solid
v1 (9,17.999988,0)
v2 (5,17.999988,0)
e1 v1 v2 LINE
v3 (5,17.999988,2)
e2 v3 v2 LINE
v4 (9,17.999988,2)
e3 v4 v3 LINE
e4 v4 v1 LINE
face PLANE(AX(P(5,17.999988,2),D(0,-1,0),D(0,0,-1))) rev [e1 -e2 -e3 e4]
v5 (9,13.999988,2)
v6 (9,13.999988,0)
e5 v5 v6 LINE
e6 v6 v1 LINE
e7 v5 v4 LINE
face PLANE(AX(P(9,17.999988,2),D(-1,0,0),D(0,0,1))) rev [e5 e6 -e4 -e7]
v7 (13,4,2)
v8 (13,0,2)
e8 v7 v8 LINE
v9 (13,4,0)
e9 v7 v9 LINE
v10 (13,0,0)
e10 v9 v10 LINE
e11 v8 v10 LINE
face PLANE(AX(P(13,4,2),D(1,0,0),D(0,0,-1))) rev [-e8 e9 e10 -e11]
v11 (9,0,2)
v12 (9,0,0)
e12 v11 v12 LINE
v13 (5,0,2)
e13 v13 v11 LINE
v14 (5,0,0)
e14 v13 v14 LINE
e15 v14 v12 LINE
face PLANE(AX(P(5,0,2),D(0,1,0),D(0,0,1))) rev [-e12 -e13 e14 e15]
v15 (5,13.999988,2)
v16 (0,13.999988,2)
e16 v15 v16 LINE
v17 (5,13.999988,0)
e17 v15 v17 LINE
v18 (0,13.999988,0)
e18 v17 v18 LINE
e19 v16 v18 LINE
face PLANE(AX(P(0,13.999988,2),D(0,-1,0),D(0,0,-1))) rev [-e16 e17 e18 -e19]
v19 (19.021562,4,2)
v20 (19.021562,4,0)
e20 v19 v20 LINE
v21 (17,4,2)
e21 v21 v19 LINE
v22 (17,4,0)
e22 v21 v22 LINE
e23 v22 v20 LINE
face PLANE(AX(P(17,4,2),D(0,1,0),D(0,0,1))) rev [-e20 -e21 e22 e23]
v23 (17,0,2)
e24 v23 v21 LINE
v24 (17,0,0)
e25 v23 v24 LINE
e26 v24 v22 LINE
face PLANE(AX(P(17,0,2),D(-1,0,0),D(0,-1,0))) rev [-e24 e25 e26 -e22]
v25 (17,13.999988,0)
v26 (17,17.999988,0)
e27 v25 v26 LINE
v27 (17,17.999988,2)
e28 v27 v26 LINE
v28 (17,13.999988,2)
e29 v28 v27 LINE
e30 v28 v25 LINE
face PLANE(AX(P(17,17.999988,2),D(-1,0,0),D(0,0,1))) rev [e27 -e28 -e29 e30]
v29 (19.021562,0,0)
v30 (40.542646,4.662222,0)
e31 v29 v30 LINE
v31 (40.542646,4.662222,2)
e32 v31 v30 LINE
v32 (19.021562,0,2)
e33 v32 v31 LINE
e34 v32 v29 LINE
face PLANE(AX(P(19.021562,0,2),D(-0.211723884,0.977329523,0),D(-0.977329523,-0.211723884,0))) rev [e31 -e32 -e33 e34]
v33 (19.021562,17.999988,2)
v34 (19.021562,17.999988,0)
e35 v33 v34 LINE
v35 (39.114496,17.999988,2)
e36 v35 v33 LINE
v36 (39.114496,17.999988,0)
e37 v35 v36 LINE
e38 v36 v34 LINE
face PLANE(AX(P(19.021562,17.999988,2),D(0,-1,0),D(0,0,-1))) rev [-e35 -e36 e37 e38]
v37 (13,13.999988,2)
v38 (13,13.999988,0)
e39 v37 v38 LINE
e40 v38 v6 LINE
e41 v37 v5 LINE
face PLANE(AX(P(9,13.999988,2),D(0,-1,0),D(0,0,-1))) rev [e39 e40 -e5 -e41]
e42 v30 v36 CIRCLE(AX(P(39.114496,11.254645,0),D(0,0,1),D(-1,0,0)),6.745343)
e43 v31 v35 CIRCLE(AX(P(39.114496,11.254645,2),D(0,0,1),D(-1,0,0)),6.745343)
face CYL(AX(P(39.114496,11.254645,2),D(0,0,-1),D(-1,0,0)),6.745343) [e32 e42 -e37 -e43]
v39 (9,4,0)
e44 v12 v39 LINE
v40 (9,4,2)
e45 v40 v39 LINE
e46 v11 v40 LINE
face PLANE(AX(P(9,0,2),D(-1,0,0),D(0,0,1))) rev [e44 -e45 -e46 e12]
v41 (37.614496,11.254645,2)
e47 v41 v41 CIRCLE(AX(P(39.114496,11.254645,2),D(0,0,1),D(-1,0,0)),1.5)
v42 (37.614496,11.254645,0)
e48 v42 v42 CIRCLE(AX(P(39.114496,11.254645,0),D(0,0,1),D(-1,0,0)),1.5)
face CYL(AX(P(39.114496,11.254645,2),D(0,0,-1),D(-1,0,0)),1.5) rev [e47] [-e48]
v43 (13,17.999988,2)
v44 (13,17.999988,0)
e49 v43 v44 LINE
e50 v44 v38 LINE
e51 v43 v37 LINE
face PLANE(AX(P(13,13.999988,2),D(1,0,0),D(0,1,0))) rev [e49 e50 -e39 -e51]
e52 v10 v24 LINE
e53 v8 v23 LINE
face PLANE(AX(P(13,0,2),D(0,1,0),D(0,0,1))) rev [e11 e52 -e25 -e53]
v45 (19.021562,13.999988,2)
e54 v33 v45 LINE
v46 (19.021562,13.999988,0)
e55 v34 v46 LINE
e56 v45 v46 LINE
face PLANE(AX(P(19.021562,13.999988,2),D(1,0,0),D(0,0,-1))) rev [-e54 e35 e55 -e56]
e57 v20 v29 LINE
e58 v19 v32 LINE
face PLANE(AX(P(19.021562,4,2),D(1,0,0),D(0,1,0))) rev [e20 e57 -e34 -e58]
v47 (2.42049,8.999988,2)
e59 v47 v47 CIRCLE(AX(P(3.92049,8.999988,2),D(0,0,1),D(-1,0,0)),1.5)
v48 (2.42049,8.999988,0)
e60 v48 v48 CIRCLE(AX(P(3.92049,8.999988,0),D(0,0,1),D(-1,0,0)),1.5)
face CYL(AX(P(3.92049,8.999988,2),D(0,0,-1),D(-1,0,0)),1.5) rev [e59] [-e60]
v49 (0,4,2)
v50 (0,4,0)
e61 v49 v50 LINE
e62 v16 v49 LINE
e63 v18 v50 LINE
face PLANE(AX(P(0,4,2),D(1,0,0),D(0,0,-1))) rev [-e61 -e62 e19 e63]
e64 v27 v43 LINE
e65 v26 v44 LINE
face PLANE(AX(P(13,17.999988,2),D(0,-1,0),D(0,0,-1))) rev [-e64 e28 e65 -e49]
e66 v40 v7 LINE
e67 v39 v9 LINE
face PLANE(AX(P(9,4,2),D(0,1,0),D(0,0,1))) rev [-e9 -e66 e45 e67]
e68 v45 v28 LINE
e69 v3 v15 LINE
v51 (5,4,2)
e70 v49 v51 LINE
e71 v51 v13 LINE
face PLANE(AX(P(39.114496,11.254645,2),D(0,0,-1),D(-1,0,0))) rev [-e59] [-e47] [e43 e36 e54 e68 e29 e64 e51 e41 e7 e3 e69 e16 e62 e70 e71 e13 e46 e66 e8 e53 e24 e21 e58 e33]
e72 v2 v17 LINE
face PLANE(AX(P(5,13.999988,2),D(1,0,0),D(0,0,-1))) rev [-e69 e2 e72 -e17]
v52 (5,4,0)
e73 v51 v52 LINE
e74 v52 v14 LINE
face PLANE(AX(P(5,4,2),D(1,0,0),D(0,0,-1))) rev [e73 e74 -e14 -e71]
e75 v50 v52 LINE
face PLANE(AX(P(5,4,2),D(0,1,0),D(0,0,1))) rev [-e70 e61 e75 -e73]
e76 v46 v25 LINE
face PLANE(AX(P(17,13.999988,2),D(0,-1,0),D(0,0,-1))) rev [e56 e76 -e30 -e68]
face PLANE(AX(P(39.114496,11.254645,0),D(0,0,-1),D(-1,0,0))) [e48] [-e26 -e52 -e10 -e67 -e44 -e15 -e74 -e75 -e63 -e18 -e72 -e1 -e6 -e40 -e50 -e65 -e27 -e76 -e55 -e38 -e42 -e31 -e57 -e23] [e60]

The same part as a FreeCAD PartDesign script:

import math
import FreeCAD as App
import Part
import Sketcher
from FreeCAD import Vector

doc = App.newDocument("Part")
body = doc.addObject("PartDesign::Body", "Body")

# Sketch on XY plane
sketch1 = body.newObject("Sketcher::SketchObject", "Sketch")
sketch1.AttachmentSupport = (doc.getObject("XY_Plane"), [""])
sketch1.MapMode = "FlatFace"
sketch1.addGeometry([
    Part.LineSegment(Vector(19.021562, 0, 0), Vector(40.542646, 4.662222, 0)),  # 0
    Part.ArcOfCircle(Part.Circle(Vector(39.114496, 11.254645, 0), Vector(0, 0, 1), 6.745343), math.radians(-77.776605), math.radians(90)),  # 1
    Part.LineSegment(Vector(39.114496, 17.999988, 0), Vector(19.021562, 17.999988, 0)),  # 2
    Part.LineSegment(Vector(19.021562, 17.999988, 0), Vector(19.021562, 13.999988, 0)),  # 3
    Part.LineSegment(Vector(19.021562, 13.999988, 0), Vector(17, 13.999988, 0)),  # 4
    Part.LineSegment(Vector(17, 13.999988, 0), Vector(17, 17.999988, 0)),  # 5
    Part.LineSegment(Vector(17, 17.999988, 0), Vector(13, 17.999988, 0)),  # 6
    Part.LineSegment(Vector(13, 17.999988, 0), Vector(13, 13.999988, 0)),  # 7
    Part.LineSegment(Vector(13, 13.999988, 0), Vector(9, 13.999988, 0)),  # 8
    Part.LineSegment(Vector(9, 13.999988, 0), Vector(9, 17.999988, 0)),  # 9
    Part.LineSegment(Vector(9, 17.999988, 0), Vector(5, 17.999988, 0)),  # 10
    Part.LineSegment(Vector(5, 17.999988, 0), Vector(5, 13.999988, 0)),  # 11
    Part.LineSegment(Vector(5, 13.999988, 0), Vector(0, 13.999988, 0)),  # 12
    Part.LineSegment(Vector(0, 13.999988, 0), Vector(0, 4, 0)),  # 13
    Part.LineSegment(Vector(0, 4, 0), Vector(5, 4, 0)),  # 14
    Part.LineSegment(Vector(5, 4, 0), Vector(5, 0, 0)),  # 15
    Part.LineSegment(Vector(5, 0, 0), Vector(9, 0, 0)),  # 16
    Part.LineSegment(Vector(9, 0, 0), Vector(9, 4, 0)),  # 17
    Part.LineSegment(Vector(9, 4, 0), Vector(13, 4, 0)),  # 18
    Part.LineSegment(Vector(13, 4, 0), Vector(13, 0, 0)),  # 19
    Part.LineSegment(Vector(13, 0, 0), Vector(17, 0, 0)),  # 20
    Part.LineSegment(Vector(17, 0, 0), Vector(17, 4, 0)),  # 21
    Part.LineSegment(Vector(17, 4, 0), Vector(19.021562, 4, 0)),  # 22
    Part.LineSegment(Vector(19.021562, 4, 0), Vector(19.021562, 0, 0)),  # 23
    Part.Circle(Vector(3.92049, 8.999988, 0), Vector(0, 0, 1), 1.5),  # 24
    Part.Circle(Vector(39.114496, 11.254645, 0), Vector(0, 0, 1), 1.5),  # 25
], False)
sketch1.addConstraint([
    Sketcher.Constraint("Tangent", 0, 2, 1, 1),
    Sketcher.Constraint("Tangent", 1, 2, 2, 1),
    Sketcher.Constraint("Coincident", 2, 2, 3, 1),
    Sketcher.Constraint("Coincident", 3, 2, 4, 1),
    Sketcher.Constraint("Coincident", 4, 2, 5, 1),
    Sketcher.Constraint("Coincident", 5, 2, 6, 1),
    Sketcher.Constraint("Coincident", 6, 2, 7, 1),
    Sketcher.Constraint("Coincident", 7, 2, 8, 1),
    Sketcher.Constraint("Coincident", 8, 2, 9, 1),
    Sketcher.Constraint("Coincident", 9, 2, 10, 1),
    Sketcher.Constraint("Coincident", 10, 2, 11, 1),
    Sketcher.Constraint("Coincident", 11, 2, 12, 1),
    Sketcher.Constraint("Coincident", 12, 2, 13, 1),
    Sketcher.Constraint("Coincident", 13, 2, 14, 1),
    Sketcher.Constraint("Coincident", 14, 2, 15, 1),
    Sketcher.Constraint("Coincident", 15, 2, 16, 1),
    Sketcher.Constraint("Coincident", 16, 2, 17, 1),
    Sketcher.Constraint("Coincident", 17, 2, 18, 1),
    Sketcher.Constraint("Coincident", 18, 2, 19, 1),
    Sketcher.Constraint("Coincident", 19, 2, 20, 1),
    Sketcher.Constraint("Coincident", 20, 2, 21, 1),
    Sketcher.Constraint("Coincident", 21, 2, 22, 1),
    Sketcher.Constraint("Coincident", 22, 2, 23, 1),
    Sketcher.Constraint("Coincident", 23, 2, 0, 1),
    Sketcher.Constraint("Horizontal", 2),
    Sketcher.Constraint("Vertical", 3),
    Sketcher.Constraint("Horizontal", 4),
    Sketcher.Constraint("Vertical", 5),
    Sketcher.Constraint("Horizontal", 6),
    Sketcher.Constraint("Vertical", 7),
    Sketcher.Constraint("Horizontal", 8),
    Sketcher.Constraint("Vertical", 9),
    Sketcher.Constraint("Horizontal", 10),
    Sketcher.Constraint("Vertical", 11),
    Sketcher.Constraint("Horizontal", 12),
    Sketcher.Constraint("Vertical", 13),
    Sketcher.Constraint("Horizontal", 14),
    Sketcher.Constraint("Vertical", 15),
    Sketcher.Constraint("Horizontal", 16),
    Sketcher.Constraint("Vertical", 17),
    Sketcher.Constraint("Horizontal", 18),
    Sketcher.Constraint("Vertical", 19),
    Sketcher.Constraint("Horizontal", 20),
    Sketcher.Constraint("Vertical", 21),
    Sketcher.Constraint("Horizontal", 22),
    Sketcher.Constraint("Vertical", 23),
    Sketcher.Constraint("Coincident", 25, 3, 1, 3),
    Sketcher.Constraint("Equal", 24, 25),
    Sketcher.Constraint("PointOnObject", 12, 2, -2),
    Sketcher.Constraint("PointOnObject", 15, 2, -1),
    Sketcher.Constraint("PointOnObject", 19, 2, -1),
    Sketcher.Constraint("PointOnObject", 23, 2, -1),
    Sketcher.Constraint("Horizontal", 2, 2, 5, 2),
    Sketcher.Constraint("Horizontal", 4, 2, 7, 2),
    Sketcher.Constraint("Horizontal", 6, 2, 9, 2),
    Sketcher.Constraint("Horizontal", 8, 2, 11, 2),
    Sketcher.Constraint("Horizontal", 14, 2, 17, 2),
    Sketcher.Constraint("Horizontal", 18, 2, 21, 2),
    Sketcher.Constraint("Vertical", 11, 2, 14, 2),
    Sketcher.Constraint("Vertical", 9, 2, 16, 2),
    Sketcher.Constraint("Vertical", 7, 2, 18, 2),
    Sketcher.Constraint("Vertical", 5, 2, 20, 2),
    Sketcher.Constraint("Vertical", 3, 2, 22, 2),
    Sketcher.Constraint("Equal", 6, 8),
    Sketcher.Constraint("Equal", 8, 10),
    Sketcher.Constraint("Equal", 20, 3),
    Sketcher.Constraint("Equal", 11, 15),
    Sketcher.Constraint("Diameter", 24, 3.0),
    Sketcher.Constraint("DistanceX", 6, 2, 6, 1, 4.0),
    Sketcher.Constraint("DistanceX", 12, 2, 12, 1, 5.0),
    Sketcher.Constraint("DistanceY", 24, 3, 1, 2, 9.0),
    Sketcher.Constraint("Radius", 1, 6.745343),
    Sketcher.Constraint("DistanceX", 4, 2, 4, 1, 2.021562),
    Sketcher.Constraint("DistanceY", 13, 2, 13, 1, 9.999988),
    Sketcher.Constraint("DistanceX", 2, 2, 2, 1, 20.092934),
    Sketcher.Constraint("DistanceX", -1, 1, 24, 3, 3.92049),
])
pad1 = body.newObject("PartDesign::Pad", "Pad")
pad1.Profile = sketch1
pad1.Length = 2

doc.recompute()
